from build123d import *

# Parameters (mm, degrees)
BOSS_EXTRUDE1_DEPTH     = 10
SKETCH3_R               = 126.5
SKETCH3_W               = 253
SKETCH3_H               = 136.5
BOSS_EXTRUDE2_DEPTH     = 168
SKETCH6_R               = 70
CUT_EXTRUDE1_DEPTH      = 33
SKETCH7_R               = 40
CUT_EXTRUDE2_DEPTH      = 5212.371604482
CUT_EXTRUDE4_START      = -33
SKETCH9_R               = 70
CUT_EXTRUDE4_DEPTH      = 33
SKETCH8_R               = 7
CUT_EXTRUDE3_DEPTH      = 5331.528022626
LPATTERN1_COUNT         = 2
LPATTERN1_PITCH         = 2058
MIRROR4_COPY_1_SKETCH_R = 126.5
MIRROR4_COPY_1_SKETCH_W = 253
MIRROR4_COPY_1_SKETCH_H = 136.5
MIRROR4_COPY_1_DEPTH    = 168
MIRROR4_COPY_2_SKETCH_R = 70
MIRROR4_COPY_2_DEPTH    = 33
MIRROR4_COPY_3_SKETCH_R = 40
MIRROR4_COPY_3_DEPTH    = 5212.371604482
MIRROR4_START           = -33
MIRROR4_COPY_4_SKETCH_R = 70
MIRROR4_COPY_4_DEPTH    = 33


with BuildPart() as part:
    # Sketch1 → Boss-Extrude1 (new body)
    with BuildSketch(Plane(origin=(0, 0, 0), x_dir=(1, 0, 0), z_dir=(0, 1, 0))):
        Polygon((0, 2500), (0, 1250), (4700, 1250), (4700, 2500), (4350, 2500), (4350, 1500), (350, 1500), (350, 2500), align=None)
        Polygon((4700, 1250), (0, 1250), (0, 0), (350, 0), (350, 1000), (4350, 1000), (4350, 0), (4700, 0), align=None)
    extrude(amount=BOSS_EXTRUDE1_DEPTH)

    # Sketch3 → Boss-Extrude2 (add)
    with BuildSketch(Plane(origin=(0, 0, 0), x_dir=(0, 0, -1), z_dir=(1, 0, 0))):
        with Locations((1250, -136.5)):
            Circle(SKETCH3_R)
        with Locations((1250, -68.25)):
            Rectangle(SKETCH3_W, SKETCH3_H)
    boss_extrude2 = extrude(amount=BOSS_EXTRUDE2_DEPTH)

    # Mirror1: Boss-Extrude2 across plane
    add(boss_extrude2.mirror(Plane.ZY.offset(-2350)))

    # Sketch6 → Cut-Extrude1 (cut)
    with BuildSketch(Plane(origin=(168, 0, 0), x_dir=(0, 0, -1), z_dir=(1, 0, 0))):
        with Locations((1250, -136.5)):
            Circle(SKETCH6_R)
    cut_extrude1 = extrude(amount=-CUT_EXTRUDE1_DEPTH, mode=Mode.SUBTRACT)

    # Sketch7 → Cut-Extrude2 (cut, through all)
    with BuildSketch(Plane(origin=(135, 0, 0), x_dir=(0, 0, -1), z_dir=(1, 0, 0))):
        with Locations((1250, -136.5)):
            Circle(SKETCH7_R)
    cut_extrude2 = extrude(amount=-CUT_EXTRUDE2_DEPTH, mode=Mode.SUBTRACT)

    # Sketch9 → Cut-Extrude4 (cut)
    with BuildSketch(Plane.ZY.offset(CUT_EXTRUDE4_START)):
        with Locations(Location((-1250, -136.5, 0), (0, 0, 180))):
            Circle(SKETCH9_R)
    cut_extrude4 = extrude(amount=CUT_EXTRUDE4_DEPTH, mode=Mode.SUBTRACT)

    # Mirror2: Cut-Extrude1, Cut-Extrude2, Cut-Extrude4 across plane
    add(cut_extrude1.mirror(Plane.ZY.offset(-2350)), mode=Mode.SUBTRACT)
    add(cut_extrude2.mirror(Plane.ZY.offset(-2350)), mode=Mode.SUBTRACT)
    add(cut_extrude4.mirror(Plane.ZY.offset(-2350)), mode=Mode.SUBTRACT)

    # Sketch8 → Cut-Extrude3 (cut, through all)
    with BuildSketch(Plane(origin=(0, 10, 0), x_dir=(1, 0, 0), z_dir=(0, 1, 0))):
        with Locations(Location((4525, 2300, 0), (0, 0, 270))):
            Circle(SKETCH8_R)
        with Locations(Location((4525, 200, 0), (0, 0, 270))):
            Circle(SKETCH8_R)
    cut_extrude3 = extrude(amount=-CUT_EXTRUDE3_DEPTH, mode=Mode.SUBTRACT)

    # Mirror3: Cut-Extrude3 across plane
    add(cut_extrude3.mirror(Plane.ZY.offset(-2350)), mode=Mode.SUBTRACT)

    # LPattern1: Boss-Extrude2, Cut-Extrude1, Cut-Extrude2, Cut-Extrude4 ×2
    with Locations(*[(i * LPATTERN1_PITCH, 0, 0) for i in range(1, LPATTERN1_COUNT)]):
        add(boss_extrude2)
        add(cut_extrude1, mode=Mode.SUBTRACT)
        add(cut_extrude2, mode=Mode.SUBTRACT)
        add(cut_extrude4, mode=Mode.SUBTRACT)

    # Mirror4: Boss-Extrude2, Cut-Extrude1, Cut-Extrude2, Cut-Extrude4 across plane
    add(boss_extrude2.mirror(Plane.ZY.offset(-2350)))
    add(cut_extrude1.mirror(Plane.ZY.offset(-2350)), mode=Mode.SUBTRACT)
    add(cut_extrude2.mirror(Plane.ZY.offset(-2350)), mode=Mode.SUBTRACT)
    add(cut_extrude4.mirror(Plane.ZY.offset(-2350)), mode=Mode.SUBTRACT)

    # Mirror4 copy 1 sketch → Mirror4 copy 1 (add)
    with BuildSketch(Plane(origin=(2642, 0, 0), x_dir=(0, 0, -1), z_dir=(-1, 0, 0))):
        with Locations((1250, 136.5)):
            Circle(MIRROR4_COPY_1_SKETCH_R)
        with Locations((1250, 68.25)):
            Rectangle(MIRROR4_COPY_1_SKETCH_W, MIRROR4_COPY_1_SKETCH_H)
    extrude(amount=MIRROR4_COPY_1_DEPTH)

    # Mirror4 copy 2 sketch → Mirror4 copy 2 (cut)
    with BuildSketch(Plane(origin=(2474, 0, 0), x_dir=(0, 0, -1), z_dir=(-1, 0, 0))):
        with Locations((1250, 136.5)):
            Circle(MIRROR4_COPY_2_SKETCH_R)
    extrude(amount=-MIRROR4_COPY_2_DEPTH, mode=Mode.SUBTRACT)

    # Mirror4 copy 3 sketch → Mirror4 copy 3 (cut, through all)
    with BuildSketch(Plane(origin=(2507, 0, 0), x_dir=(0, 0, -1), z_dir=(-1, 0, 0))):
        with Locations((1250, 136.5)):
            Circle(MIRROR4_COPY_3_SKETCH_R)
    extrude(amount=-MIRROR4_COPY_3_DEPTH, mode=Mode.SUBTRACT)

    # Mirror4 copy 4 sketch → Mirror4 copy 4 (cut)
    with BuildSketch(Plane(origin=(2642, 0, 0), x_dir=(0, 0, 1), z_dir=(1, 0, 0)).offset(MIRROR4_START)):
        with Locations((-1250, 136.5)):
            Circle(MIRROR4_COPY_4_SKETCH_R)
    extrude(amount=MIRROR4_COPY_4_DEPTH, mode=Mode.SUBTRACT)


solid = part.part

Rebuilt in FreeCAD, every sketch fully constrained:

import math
import FreeCAD as App
import Part
import Sketcher

V = App.Vector
Q = App.Units.Quantity


def add_polygon(sketch, points):
    """Adds a closed chain of lines whose ends are joined by coincident constraints."""
    first, n = sketch.GeometryCount, len(points)
    for a, b in zip(points, points[1:] + points[:1]):
        sketch.addGeometry(Part.LineSegment(App.Vector(*a, 0), App.Vector(*b, 0)), False)
    for i in range(n):
        sketch.addConstraint(Sketcher.Constraint("Coincident", first + i, 2, first + (i + 1) % n, 1))

doc = App.newDocument("Part")
params = doc.addObject("Spreadsheet::Sheet", "Params")
for row, (alias, value) in enumerate([
    ("sketch1_width", "350 mm"),
    ("sketch1_width2", "4000 mm"),
    ("sketch1_height", "2500 mm"),
    ("sketch1_height2", "1000 mm"),
    ("pad1_length", "10 mm"),
    ("sketch2_radius", "126.5 mm"),
    ("sketch2_width", "136.5 mm"),
    ("pad2_length", "168 mm"),
    ("sketch3_diameter", "140 mm"),
    ("pocket1_length", "33 mm"),
    ("sketch4_diameter", "80 mm"),
    ("sketch5_diameter", "140 mm"),
    ("pocket3_length", "33 mm"),
    ("sketch6_diameter", "14 mm"),
    ("linearpattern_pitch", "2058 mm"),
    ("sketch7_radius", "126.5 mm"),
    ("sketch7_width", "136.5 mm"),
    ("pad3_length", "168 mm"),
    ("sketch8_diameter", "140 mm"),
    ("pocket5_length", "33 mm"),
    ("sketch9_diameter", "80 mm"),
    ("sketch10_diameter", "140 mm"),
    ("pocket7_length", "33 mm"),
], start=1):
    params.set(f"A{row}", alias)
    params.set(f"B{row}", "=" + value)
    params.setAlias(f"B{row}", alias)

body = doc.addObject("PartDesign::Body", "Body")

# Sketch on XZ plane
sketch1 = body.newObject("Sketcher::SketchObject", "Sketch")
sketch1.AttachmentSupport = (doc.getObject("XZ_Plane"), [""])
sketch1.MapMode = "FlatFace"
add_polygon(sketch1, [(0, -2500), (0, 0), (350, 0), (350, -1000), (4350, -1000), (4350, 0), (4700, 0), (4700, -2500), (4350, -2500), (4350, -1500), (350, -1500), (350, -2500)])  # lines 0-11
sketch1.addConstraint(Sketcher.Constraint("Vertical", 0))
sketch1.addConstraint(Sketcher.Constraint("Horizontal", 1))
sketch1.addConstraint(Sketcher.Constraint("Vertical", 2))
sketch1.addConstraint(Sketcher.Constraint("Horizontal", 3))
sketch1.addConstraint(Sketcher.Constraint("Vertical", 4))
sketch1.addConstraint(Sketcher.Constraint("Horizontal", 5))
sketch1.addConstraint(Sketcher.Constraint("Vertical", 6))
sketch1.addConstraint(Sketcher.Constraint("Horizontal", 7))
sketch1.addConstraint(Sketcher.Constraint("Vertical", 8))
sketch1.addConstraint(Sketcher.Constraint("Horizontal", 9))
sketch1.addConstraint(Sketcher.Constraint("Vertical", 10))
sketch1.addConstraint(Sketcher.Constraint("Horizontal", 11))
sketch1.addConstraint(Sketcher.Constraint("Coincident", 0, 2, -1, 1))
sketch1.addConstraint(Sketcher.Constraint("PointOnObject", 4, 2, -1))
sketch1.addConstraint(Sketcher.Constraint("Horizontal", 7, 2, 10, 2))
sketch1.addConstraint(Sketcher.Constraint("Vertical", 4, 2, 7, 2))
sketch1.addConstraint(Sketcher.Constraint("Vertical", 2, 2, 9, 2))
sketch1.addConstraint(Sketcher.Constraint("Equal", 1, 5))
sketch1.addConstraint(Sketcher.Constraint("Equal", 4, 8))
sketch1.addConstraint(Sketcher.Constraint("DistanceX", 1, 1, 1, 2, Q("350 mm")))
sketch1.addConstraint(Sketcher.Constraint("DistanceX", 3, 1, 3, 2, Q("4000 mm")))
sketch1.addConstraint(Sketcher.Constraint("DistanceY", 0, 1, 0, 2, Q("2500 mm")))
sketch1.addConstraint(Sketcher.Constraint("DistanceY", 2, 2, 2, 1, Q("1000 mm")))
sketch1.setExpression("Constraints[31]", "Params.sketch1_width")
sketch1.setExpression("Constraints[32]", "Params.sketch1_width2")
sketch1.setExpression("Constraints[33]", "Params.sketch1_height")
sketch1.setExpression("Constraints[34]", "Params.sketch1_height2")
pad1 = body.newObject("PartDesign::Pad", "Pad")
pad1.Profile = sketch1
pad1.setExpression("Length", "Params.pad1_length")
pad1.Reversed = True

# Sketch on YZ plane
sketch2 = body.newObject("Sketcher::SketchObject", "Sketch001")
sketch2.AttachmentSupport = (doc.getObject("YZ_Plane"), [""])
sketch2.MapMode = "FlatFace"
sketch2.addGeometry(Part.ArcOfCircle(Part.Circle(V(-136, -1250, 0), V(0, 0, 1), 126), math.radians(90), math.radians(270)), False)
sketch2.addGeometry(Part.LineSegment(V(-136, -1376, 0), V(0, -1376, 0)), False)
sketch2.addGeometry(Part.LineSegment(V(0, -1376, 0), V(0, -1124, 0)), False)
sketch2.addGeometry(Part.LineSegment(V(0, -1124, 0), V(-136, -1124, 0)), False)
sketch2.addConstraint(Sketcher.Constraint("Tangent", 0, 2, 1, 1))
sketch2.addConstraint(Sketcher.Constraint("Coincident", 1, 2, 2, 1))
sketch2.addConstraint(Sketcher.Constraint("Coincident", 2, 2, 3, 1))
sketch2.addConstraint(Sketcher.Constraint("Tangent", 3, 2, 0, 1))
sketch2.addConstraint(Sketcher.Constraint("Horizontal", 1))
sketch2.addConstraint(Sketcher.Constraint("Vertical", 2))
sketch2.addConstraint(Sketcher.Constraint("Horizontal", 3))
sketch2.addConstraint(Sketcher.Constraint("PointOnObject", 1, 2, -2))
sketch2.addConstraint(Sketcher.Constraint("Radius", 0, Q("126.5 mm")))
sketch2.addConstraint(Sketcher.Constraint("DistanceX", 1, 1, 1, 2, Q("136.5 mm")))
sketch2.addConstraint(Sketcher.Constraint("DistanceY", 0, 3, -1, 1, Q("1250 mm")))
sketch2.setExpression("Constraints[8]", "Params.sketch2_radius")
sketch2.setExpression("Constraints[9]", "Params.sketch2_width")
pad2 = body.newObject("PartDesign::Pad", "Pad001")
pad2.Profile = sketch2
pad2.setExpression("Length", "Params.pad2_length")
doc.recompute()

datumplane = body.newObject("PartDesign::Plane", "DatumPlane")
datumplane.AttachmentSupport = (doc.getObject("YZ_Plane"), [""])
datumplane.MapMode = "FlatFace"
datumplane.AttachmentOffset = App.Placement(V(0, 0, 2350), App.Rotation())
mirrored = body.newObject("PartDesign::Mirrored", "Mirrored")
mirrored.Originals = [pad2]
mirrored.MirrorPlane = (datumplane, [""])
body.Tip = mirrored

# Sketch on YZ plane
sketch3 = body.newObject("Sketcher::SketchObject", "Sketch002")
sketch3.AttachmentSupport = (doc.getObject("YZ_Plane"), [""])
sketch3.MapMode = "FlatFace"
sketch3.AttachmentOffset = App.Placement(V(0, 0, 168), App.Rotation())
sketch3.addGeometry(Part.Circle(V(-136, -1250, 0), V(0, 0, 1), 70), False)
sketch3.addConstraint(Sketcher.Constraint("Diameter", 0, Q("140 mm")))
sketch3.addConstraint(Sketcher.Constraint("DistanceY", 0, 3, -1, 1, Q("1250 mm")))
sketch3.addConstraint(Sketcher.Constraint("DistanceX", 0, 3, -1, 1, Q("136.5 mm")))
sketch3.setExpression("Constraints[0]", "Params.sketch3_diameter")
pocket1 = body.newObject("PartDesign::Pocket", "Pocket")
pocket1.Profile = sketch3
pocket1.setExpression("Length", "Params.pocket1_length")

# Sketch on YZ plane
sketch4 = body.newObject("Sketcher::SketchObject", "Sketch003")
sketch4.AttachmentSupport = (doc.getObject("YZ_Plane"), [""])
sketch4.MapMode = "FlatFace"
sketch4.AttachmentOffset = App.Placement(V(0, 0, 135), App.Rotation())
sketch4.addGeometry(Part.Circle(V(-136, -1250, 0), V(0, 0, 1), 40), False)
sketch4.addConstraint(Sketcher.Constraint("Diameter", 0, Q("80 mm")))
sketch4.addConstraint(Sketcher.Constraint("DistanceY", 0, 3, -1, 1, Q("1250 mm")))
sketch4.addConstraint(Sketcher.Constraint("DistanceX", 0, 3, -1, 1, Q("136.5 mm")))
sketch4.setExpression("Constraints[0]", "Params.sketch4_diameter")
pocket2 = body.newObject("PartDesign::Pocket", "Pocket001")
pocket2.Profile = sketch4
pocket2.Type = "ThroughAll"

# Sketch on YZ plane
sketch5 = body.newObject("Sketcher::SketchObject", "Sketch004")
sketch5.AttachmentSupport = (doc.getObject("YZ_Plane"), [""])
sketch5.MapMode = "FlatFace"
sketch5.AttachmentOffset = App.Placement(V(0, 0, 33), App.Rotation())
sketch5.addGeometry(Part.Circle(V(-136, -1250, 0), V(0, 0, 1), 70), False)
sketch5.addConstraint(Sketcher.Constraint("Diameter", 0, Q("140 mm")))
sketch5.addConstraint(Sketcher.Constraint("DistanceY", 0, 3, -1, 1, Q("1250 mm")))
sketch5.addConstraint(Sketcher.Constraint("DistanceX", 0, 3, -1, 1, Q("136.5 mm")))
sketch5.setExpression("Constraints[0]", "Params.sketch5_diameter")
pocket3 = body.newObject("PartDesign::Pocket", "Pocket002")
pocket3.Profile = sketch5
pocket3.setExpression("Length", "Params.pocket3_length")
doc.recompute()

datumplane2 = body.newObject("PartDesign::Plane", "DatumPlane001")
datumplane2.AttachmentSupport = (doc.getObject("YZ_Plane"), [""])
datumplane2.MapMode = "FlatFace"
datumplane2.AttachmentOffset = App.Placement(V(0, 0, 2350), App.Rotation())
mirrored2 = body.newObject("PartDesign::Mirrored", "Mirrored001")
mirrored2.Originals = [pocket1, pocket2, pocket3]
mirrored2.MirrorPlane = (datumplane2, [""])
body.Tip = mirrored2

# Sketch on XZ plane
sketch6 = body.newObject("Sketcher::SketchObject", "Sketch005")
sketch6.AttachmentSupport = (doc.getObject("XZ_Plane"), [""])
sketch6.MapMode = "FlatFace"
sketch6.AttachmentOffset = App.Placement(V(0, 0, -10), App.Rotation())
sketch6.addGeometry(Part.Circle(V(4525, -2300, 0), V(0, 0, 1), 7), False)
sketch6.addGeometry(Part.Circle(V(4525, -200, 0), V(0, 0, 1), 7), False)
sketch6.addConstraint(Sketcher.Constraint("Equal", 0, 1))
sketch6.addConstraint(Sketcher.Constraint("Vertical", 0, 3, 1, 3))
sketch6.addConstraint(Sketcher.Constraint("Diameter", 0, Q("14 mm")))
sketch6.addConstraint(Sketcher.Constraint("DistanceX", -1, 1, 0, 3, Q("4525 mm")))
sketch6.addConstraint(Sketcher.Constraint("DistanceY", 0, 3, -1, 1, Q("2300 mm")))
sketch6.addConstraint(Sketcher.Constraint("DistanceY", 1, 3, -1, 1, Q("200 mm")))
sketch6.setExpression("Constraints[2]", "Params.sketch6_diameter")
pocket4 = body.newObject("PartDesign::Pocket", "Pocket003")
pocket4.Profile = sketch6
pocket4.Type = "ThroughAll"
pocket4.Reversed = True
doc.recompute()

datumplane3 = body.newObject("PartDesign::Plane", "DatumPlane002")
datumplane3.AttachmentSupport = (doc.getObject("YZ_Plane"), [""])
datumplane3.MapMode = "FlatFace"
datumplane3.AttachmentOffset = App.Placement(V(0, 0, 2350), App.Rotation())
mirrored3 = body.newObject("PartDesign::Mirrored", "Mirrored002")
mirrored3.Originals = [pocket4]
mirrored3.MirrorPlane = (datumplane3, [""])
body.Tip = mirrored3
doc.recompute()

linearpattern = body.newObject("PartDesign::LinearPattern", "LinearPattern")
linearpattern.Originals = [pad2, pocket1, pocket2, pocket3]
linearpattern.Direction = (doc.getObject("X_Axis"), [""])
linearpattern.Mode = "offset"
linearpattern.setExpression("Offset", "Params.linearpattern_pitch")
linearpattern.Occurrences = 2
body.Tip = linearpattern
doc.recompute()

datumplane4 = body.newObject("PartDesign::Plane", "DatumPlane003")
datumplane4.AttachmentSupport = (doc.getObject("YZ_Plane"), [""])
datumplane4.MapMode = "FlatFace"
datumplane4.AttachmentOffset = App.Placement(V(0, 0, 2350), App.Rotation())
mirrored4 = body.newObject("PartDesign::Mirrored", "Mirrored003")
mirrored4.Originals = [pad2, pocket1, pocket2, pocket3]
mirrored4.MirrorPlane = (datumplane4, [""])
body.Tip = mirrored4

# Sketch on YZ plane
sketch7 = body.newObject("Sketcher::SketchObject", "Sketch006")
sketch7.AttachmentSupport = (doc.getObject("YZ_Plane"), [""])
sketch7.MapMode = "FlatFace"
sketch7.AttachmentOffset = App.Placement(V(0, 0, 2642), App.Rotation())
sketch7.addGeometry(Part.ArcOfCircle(Part.Circle(V(-136, -1250, 0), V(0, 0, 1), 126), math.radians(90), math.radians(270)), False)
sketch7.addGeometry(Part.LineSegment(V(-136, -1124, 0), V(0, -1124, 0)), False)
sketch7.addGeometry(Part.LineSegment(V(0, -1124, 0), V(0, -1376, 0)), False)
sketch7.addGeometry(Part.LineSegment(V(0, -1376, 0), V(-136, -1376, 0)), False)
sketch7.addConstraint(Sketcher.Constraint("Tangent", 0, 1, 1, 1))
sketch7.addConstraint(Sketcher.Constraint("Coincident", 1, 2, 2, 1))
sketch7.addConstraint(Sketcher.Constraint("Coincident", 2, 2, 3, 1))
sketch7.addConstraint(Sketcher.Constraint("Tangent", 3, 2, 0, 2))
sketch7.addConstraint(Sketcher.Constraint("Horizontal", 1))
sketch7.addConstraint(Sketcher.Constraint("Vertical", 2))
sketch7.addConstraint(Sketcher.Constraint("Horizontal", 3))
sketch7.addConstraint(Sketcher.Constraint("PointOnObject", 1, 2, -2))
sketch7.addConstraint(Sketcher.Constraint("Radius", 0, Q("126.5 mm")))
sketch7.addConstraint(Sketcher.Constraint("DistanceX", 1, 1, 1, 2, Q("136.5 mm")))
sketch7.addConstraint(Sketcher.Constraint("DistanceY", 0, 3, -1, 1, Q("1250 mm")))
sketch7.setExpression("Constraints[8]", "Params.sketch7_radius")
sketch7.setExpression("Constraints[9]", "Params.sketch7_width")
pad3 = body.newObject("PartDesign::Pad", "Pad002")
pad3.Profile = sketch7
pad3.setExpression("Length", "Params.pad3_length")
pad3.Reversed = True

# Sketch on YZ plane
sketch8 = body.newObject("Sketcher::SketchObject", "Sketch007")
sketch8.AttachmentSupport = (doc.getObject("YZ_Plane"), [""])
sketch8.MapMode = "FlatFace"
sketch8.AttachmentOffset = App.Placement(V(0, 0, 2474), App.Rotation())
sketch8.addGeometry(Part.Circle(V(-136, -1250, 0), V(0, 0, 1), 70), False)
sketch8.addConstraint(Sketcher.Constraint("Diameter", 0, Q("140 mm")))
sketch8.addConstraint(Sketcher.Constraint("DistanceY", 0, 3, -1, 1, Q("1250 mm")))
sketch8.addConstraint(Sketcher.Constraint("DistanceX", 0, 3, -1, 1, Q("136.5 mm")))
sketch8.setExpression("Constraints[0]", "Params.sketch8_diameter")
pocket5 = body.newObject("PartDesign::Pocket", "Pocket004")
pocket5.Profile = sketch8
pocket5.setExpression("Length", "Params.pocket5_length")
pocket5.Reversed = True

# Sketch on YZ plane
sketch9 = body.newObject("Sketcher::SketchObject", "Sketch008")
sketch9.AttachmentSupport = (doc.getObject("YZ_Plane"), [""])
sketch9.MapMode = "FlatFace"
sketch9.AttachmentOffset = App.Placement(V(0, 0, 2507), App.Rotation())
sketch9.addGeometry(Part.Circle(V(-136, -1250, 0), V(0, 0, 1), 40), False)
sketch9.addConstraint(Sketcher.Constraint("Diameter", 0, Q("80 mm")))
sketch9.addConstraint(Sketcher.Constraint("DistanceY", 0, 3, -1, 1, Q("1250 mm")))
sketch9.addConstraint(Sketcher.Constraint("DistanceX", 0, 3, -1, 1, Q("136.5 mm")))
sketch9.setExpression("Constraints[0]", "Params.sketch9_diameter")
pocket6 = body.newObject("PartDesign::Pocket", "Pocket005")
pocket6.Profile = sketch9
pocket6.Type = "ThroughAll"
pocket6.Reversed = True

# Sketch on YZ plane
sketch10 = body.newObject("Sketcher::SketchObject", "Sketch009")
sketch10.AttachmentSupport = (doc.getObject("YZ_Plane"), [""])
sketch10.MapMode = "FlatFace"
sketch10.AttachmentOffset = App.Placement(V(0, 0, 2609), App.Rotation())
sketch10.addGeometry(Part.Circle(V(-136, -1250, 0), V(0, 0, 1), 70), False)
sketch10.addConstraint(Sketcher.Constraint("Diameter", 0, Q("140 mm")))
sketch10.addConstraint(Sketcher.Constraint("DistanceY", 0, 3, -1, 1, Q("1250 mm")))
sketch10.addConstraint(Sketcher.Constraint("DistanceX", 0, 3, -1, 1, Q("136.5 mm")))
sketch10.setExpression("Constraints[0]", "Params.sketch10_diameter")
pocket7 = body.newObject("PartDesign::Pocket", "Pocket006")
pocket7.Profile = sketch10
pocket7.setExpression("Length", "Params.pocket7_length")
pocket7.Reversed = True

doc.recompute()
